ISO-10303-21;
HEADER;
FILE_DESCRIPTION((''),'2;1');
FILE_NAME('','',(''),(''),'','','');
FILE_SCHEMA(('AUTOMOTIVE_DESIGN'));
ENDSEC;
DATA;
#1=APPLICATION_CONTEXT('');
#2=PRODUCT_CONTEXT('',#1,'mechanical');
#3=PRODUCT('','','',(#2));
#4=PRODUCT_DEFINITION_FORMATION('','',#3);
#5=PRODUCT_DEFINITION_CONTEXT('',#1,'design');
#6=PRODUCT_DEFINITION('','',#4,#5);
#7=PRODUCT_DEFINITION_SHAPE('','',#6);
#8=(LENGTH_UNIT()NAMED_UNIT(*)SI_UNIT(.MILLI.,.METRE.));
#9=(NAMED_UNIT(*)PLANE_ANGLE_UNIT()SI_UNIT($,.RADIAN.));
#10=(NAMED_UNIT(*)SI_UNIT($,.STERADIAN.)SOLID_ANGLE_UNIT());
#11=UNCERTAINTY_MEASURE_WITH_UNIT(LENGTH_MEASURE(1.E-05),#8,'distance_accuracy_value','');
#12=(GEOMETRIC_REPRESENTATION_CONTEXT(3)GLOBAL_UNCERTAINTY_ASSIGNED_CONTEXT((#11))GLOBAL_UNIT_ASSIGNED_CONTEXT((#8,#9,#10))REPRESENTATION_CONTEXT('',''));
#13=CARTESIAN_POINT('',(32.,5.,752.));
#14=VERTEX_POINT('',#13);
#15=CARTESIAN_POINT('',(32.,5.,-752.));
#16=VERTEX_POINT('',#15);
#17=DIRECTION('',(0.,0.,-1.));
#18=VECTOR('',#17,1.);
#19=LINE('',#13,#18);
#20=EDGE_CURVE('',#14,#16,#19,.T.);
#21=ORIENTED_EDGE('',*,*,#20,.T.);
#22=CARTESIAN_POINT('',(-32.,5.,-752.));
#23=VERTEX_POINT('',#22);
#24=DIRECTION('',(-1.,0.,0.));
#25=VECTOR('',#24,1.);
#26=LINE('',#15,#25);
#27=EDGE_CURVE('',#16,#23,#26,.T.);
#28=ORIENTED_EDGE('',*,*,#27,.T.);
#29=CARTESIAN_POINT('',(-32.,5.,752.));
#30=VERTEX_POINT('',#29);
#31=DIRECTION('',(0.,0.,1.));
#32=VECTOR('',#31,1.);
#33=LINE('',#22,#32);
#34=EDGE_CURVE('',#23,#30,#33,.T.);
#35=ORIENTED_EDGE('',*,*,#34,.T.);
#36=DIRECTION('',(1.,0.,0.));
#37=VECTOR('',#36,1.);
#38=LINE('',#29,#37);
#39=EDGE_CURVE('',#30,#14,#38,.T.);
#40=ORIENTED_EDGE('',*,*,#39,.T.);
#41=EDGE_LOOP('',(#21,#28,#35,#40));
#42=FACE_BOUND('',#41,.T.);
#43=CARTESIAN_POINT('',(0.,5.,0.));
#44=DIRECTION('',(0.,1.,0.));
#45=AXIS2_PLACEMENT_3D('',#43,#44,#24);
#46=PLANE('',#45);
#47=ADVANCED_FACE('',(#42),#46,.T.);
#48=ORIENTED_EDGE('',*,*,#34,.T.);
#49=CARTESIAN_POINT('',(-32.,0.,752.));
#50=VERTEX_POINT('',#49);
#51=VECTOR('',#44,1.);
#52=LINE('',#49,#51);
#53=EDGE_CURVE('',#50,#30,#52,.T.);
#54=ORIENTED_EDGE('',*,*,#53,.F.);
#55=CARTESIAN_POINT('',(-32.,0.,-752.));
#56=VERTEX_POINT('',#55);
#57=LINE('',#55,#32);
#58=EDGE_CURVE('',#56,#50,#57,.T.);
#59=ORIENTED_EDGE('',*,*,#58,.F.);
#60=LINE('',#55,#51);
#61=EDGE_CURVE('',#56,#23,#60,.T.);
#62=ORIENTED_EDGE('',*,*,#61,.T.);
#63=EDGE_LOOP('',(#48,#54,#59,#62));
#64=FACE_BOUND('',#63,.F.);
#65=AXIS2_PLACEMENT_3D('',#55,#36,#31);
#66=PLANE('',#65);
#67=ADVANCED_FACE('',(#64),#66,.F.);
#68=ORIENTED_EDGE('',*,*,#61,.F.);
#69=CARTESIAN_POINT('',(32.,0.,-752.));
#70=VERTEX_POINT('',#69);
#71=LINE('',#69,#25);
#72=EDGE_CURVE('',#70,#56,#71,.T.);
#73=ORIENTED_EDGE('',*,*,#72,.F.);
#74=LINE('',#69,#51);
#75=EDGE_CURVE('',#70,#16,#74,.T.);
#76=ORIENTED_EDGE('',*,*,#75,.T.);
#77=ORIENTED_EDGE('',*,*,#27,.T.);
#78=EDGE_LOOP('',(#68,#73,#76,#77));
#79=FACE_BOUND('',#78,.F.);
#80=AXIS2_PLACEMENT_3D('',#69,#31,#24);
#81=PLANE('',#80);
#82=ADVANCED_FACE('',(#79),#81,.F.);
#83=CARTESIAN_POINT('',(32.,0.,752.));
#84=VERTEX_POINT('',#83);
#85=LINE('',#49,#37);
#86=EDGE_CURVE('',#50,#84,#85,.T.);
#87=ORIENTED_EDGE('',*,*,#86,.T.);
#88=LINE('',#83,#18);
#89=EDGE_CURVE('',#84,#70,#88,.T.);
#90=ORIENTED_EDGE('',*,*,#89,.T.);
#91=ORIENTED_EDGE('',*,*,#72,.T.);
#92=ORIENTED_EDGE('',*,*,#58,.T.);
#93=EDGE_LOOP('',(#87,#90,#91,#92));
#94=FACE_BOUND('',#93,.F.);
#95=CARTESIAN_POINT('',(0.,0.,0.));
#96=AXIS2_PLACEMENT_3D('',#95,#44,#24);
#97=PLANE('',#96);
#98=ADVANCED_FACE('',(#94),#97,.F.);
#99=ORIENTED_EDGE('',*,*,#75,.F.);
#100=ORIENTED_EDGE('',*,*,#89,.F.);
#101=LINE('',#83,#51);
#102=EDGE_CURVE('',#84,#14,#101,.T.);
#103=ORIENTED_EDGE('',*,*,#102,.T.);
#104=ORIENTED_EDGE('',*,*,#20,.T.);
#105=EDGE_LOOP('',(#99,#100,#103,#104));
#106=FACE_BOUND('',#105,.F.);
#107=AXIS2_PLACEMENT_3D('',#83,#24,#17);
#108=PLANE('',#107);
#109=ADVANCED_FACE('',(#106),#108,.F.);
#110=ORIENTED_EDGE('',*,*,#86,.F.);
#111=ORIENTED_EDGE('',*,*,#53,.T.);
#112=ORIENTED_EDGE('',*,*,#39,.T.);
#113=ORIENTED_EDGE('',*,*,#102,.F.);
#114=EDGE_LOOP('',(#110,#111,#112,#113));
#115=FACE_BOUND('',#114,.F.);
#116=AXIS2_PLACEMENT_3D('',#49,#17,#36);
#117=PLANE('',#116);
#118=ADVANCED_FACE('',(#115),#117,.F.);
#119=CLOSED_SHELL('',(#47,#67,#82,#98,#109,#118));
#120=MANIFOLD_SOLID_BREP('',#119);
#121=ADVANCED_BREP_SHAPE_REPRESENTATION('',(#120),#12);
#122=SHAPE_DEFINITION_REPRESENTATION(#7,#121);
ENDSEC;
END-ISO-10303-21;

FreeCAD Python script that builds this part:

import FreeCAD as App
import Part
import Sketcher
from FreeCAD import Vector

doc = App.newDocument("Part")
params = doc.addObject("Spreadsheet::Sheet", "Params")
for row, (alias, value) in enumerate([
    ("sketch1_width", "64 mm"),
    ("sketch1_height", "1504 mm"),
    ("pad1_length", "5 mm"),
], start=1):
    params.set(f"A{row}", alias)
    params.set(f"B{row}", "=" + value)
    params.setAlias(f"B{row}", alias)

body = doc.addObject("PartDesign::Body", "Body")

sketch1 = body.newObject("Sketcher::SketchObject", "Sketch")
sketch1.AttachmentSupport = (doc.getObject("XZ_Plane"), [""])
sketch1.MapMode = "FlatFace"
sketch1.addGeometry(Part.LineSegment(Vector(-32, -752, 0), Vector(-32, 752, 0)), False)
sketch1.addGeometry(Part.LineSegment(Vector(-32, 752, 0), Vector(32, 752, 0)), False)
sketch1.addGeometry(Part.LineSegment(Vector(32, 752, 0), Vector(32, -752, 0)), False)
sketch1.addGeometry(Part.LineSegment(Vector(32, -752, 0), Vector(-32, -752, 0)), False)
sketch1.addConstraint(Sketcher.Constraint("Coincident", 0, 2, 1, 1))
sketch1.addConstraint(Sketcher.Constraint("Coincident", 1, 2, 2, 1))
sketch1.addConstraint(Sketcher.Constraint("Coincident", 2, 2, 3, 1))
sketch1.addConstraint(Sketcher.Constraint("Coincident", 3, 2, 0, 1))
sketch1.addConstraint(Sketcher.Constraint("Vertical", 0))
sketch1.addConstraint(Sketcher.Constraint("Horizontal", 1))
sketch1.addConstraint(Sketcher.Constraint("Vertical", 2))
sketch1.addConstraint(Sketcher.Constraint("Horizontal", 3))
sketch1.addConstraint(Sketcher.Constraint("Symmetric", 0, 2, 2, 2, -1, 1))
sketch1.addConstraint(Sketcher.Constraint("DistanceX", 1, 1, 1, 2, 64.0))
sketch1.addConstraint(Sketcher.Constraint("DistanceY", 0, 1, 0, 2, 1504.0))
sketch1.setExpression("Constraints[9]", "Params.sketch1_width")
sketch1.setExpression("Constraints[10]", "Params.sketch1_height")
pad1 = body.newObject("PartDesign::Pad", "Pad")
pad1.Profile = sketch1
pad1.setExpression("Length", "Params.pad1_length")
pad1.Reversed = True

doc.recompute()
